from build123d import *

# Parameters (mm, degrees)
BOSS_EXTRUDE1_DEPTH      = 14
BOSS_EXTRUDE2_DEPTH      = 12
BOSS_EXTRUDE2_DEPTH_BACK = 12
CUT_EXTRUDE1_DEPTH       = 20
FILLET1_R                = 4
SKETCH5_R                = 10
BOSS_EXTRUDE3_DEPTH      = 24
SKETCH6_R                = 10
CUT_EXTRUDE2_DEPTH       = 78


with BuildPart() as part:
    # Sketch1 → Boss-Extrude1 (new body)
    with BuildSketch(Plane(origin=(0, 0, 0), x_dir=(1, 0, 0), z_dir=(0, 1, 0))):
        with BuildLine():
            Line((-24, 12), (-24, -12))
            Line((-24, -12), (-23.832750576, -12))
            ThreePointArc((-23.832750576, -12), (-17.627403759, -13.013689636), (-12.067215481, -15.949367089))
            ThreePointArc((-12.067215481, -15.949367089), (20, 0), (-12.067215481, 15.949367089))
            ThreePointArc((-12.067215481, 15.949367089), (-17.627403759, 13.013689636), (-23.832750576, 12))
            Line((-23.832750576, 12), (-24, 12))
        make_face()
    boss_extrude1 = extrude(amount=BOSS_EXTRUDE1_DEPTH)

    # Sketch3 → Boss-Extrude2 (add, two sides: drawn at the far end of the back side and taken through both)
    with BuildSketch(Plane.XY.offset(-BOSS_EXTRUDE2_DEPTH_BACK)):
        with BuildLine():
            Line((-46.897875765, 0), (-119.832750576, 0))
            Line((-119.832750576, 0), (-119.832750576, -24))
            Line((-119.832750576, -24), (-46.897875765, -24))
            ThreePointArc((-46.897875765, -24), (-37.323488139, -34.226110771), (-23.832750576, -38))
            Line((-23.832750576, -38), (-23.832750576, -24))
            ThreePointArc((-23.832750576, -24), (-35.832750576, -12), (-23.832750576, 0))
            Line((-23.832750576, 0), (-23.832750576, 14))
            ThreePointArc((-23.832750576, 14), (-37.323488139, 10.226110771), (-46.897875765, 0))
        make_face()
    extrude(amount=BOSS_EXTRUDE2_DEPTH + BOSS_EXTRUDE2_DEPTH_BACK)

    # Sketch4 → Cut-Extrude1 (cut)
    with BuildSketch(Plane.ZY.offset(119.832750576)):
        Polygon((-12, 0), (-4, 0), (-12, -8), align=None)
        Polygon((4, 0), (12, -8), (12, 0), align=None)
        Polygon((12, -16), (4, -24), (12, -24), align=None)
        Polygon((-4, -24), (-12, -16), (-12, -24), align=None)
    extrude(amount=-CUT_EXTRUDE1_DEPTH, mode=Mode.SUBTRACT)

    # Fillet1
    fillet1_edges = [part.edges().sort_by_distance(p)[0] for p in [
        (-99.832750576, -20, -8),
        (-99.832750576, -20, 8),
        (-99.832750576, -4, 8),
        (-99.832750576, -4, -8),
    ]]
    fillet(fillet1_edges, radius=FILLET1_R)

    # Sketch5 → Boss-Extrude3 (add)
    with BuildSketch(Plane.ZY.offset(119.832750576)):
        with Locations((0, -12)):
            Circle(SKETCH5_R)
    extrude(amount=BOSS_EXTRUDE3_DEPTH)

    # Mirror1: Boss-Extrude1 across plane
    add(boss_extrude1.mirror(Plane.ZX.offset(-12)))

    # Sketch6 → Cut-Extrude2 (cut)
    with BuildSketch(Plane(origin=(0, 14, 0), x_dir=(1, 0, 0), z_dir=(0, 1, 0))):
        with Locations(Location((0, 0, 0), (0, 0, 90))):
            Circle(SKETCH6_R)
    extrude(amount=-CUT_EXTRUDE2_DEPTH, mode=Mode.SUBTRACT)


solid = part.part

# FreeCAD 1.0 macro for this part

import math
import FreeCAD as App
import Part
import Sketcher
Q = App.Units.Quantity


def edges_at(feature, points):
    """Names of the edges that pass closest to the given points."""
    edges = feature.Shape.Edges
    near = lambda p: min(range(len(edges)), key=lambda i: edges[i].distToShape(Part.Vertex(*p))[0])
    return sorted({f"Edge{near(p) + 1}" for p in points})


def add_polygon(sketch, points):
    """Adds a closed chain of lines whose ends are joined by coincident constraints."""
    first, n = sketch.GeometryCount, len(points)
    for a, b in zip(points, points[1:] + points[:1]):
        sketch.addGeometry(Part.LineSegment(App.Vector(*a, 0), App.Vector(*b, 0)), False)
    for i in range(n):
        sketch.addConstraint(Sketcher.Constraint("Coincident", first + i, 2, first + (i + 1) % n, 1))

doc = App.newDocument("Part")
body = doc.addObject("PartDesign::Body", "Body")

sketch1 = body.newObject("Sketcher::SketchObject", "Sketch")
sketch1.AttachmentSupport = (doc.getObject("XZ_Plane"), [""])
sketch1.MapMode = "FlatFace"
sketch1.addGeometry([
    Part.LineSegment(App.Vector(-24, -12, 0), App.Vector(-24, 12, 0)),
    Part.LineSegment(App.Vector(-24, 12, 0), App.Vector(-23.83, 12, 0)),
    Part.ArcOfCircle(Part.Circle(App.Vector(-23.83, 31.5, 0), App.Vector(0, 0, 1), 19.5), math.radians(-90), math.radians(-53)),
    Part.ArcOfCircle(Part.Circle(App.Vector(0, 0, 0), App.Vector(0, 0, 1), 20), math.radians(-127), math.radians(127)),
    Part.ArcOfCircle(Part.Circle(App.Vector(-23.83, -31.5, 0), App.Vector(0, 0, 1), 19.5), math.radians(53), math.radians(90)),
    Part.LineSegment(App.Vector(-23.83, -12, 0), App.Vector(-24, -12, 0)),
], False)
sketch1.addConstraint([
    Sketcher.Constraint("Coincident", 0, 2, 1, 1),
    Sketcher.Constraint("Tangent", 1, 2, 2, 1),
    Sketcher.Constraint("Tangent", 2, 2, 3, 2),
    Sketcher.Constraint("Tangent", 3, 1, 4, 1),
    Sketcher.Constraint("Tangent", 4, 2, 5, 1),
    Sketcher.Constraint("Coincident", 5, 2, 0, 1),
    Sketcher.Constraint("Vertical", 0),
    Sketcher.Constraint("Horizontal", 1),
    Sketcher.Constraint("Horizontal", 5),
    Sketcher.Constraint("Coincident", 3, 3, -1, 1),
    Sketcher.Constraint("Equal", 2, 4),
    Sketcher.Constraint("Vertical", 2, 3, 4, 3),
    Sketcher.Constraint("Radius", 3, Q("20 mm")),
    Sketcher.Constraint("Radius", 2, Q("19.5 mm")),
    Sketcher.Constraint("DistanceY", 0, 1, 0, 2, Q("24 mm")),
    Sketcher.Constraint("DistanceX", 0, 2, -1, 1, Q("24 mm")),
])
pad1 = body.newObject("PartDesign::Pad", "Pad")
pad1.Profile = sketch1
pad1.Length = 14
pad1.Reversed = True

sketch2 = body.newObject("Sketcher::SketchObject", "Sketch001")
sketch2.AttachmentSupport = (doc.getObject("XY_Plane"), [""])
sketch2.MapMode = "FlatFace"
sketch2.addGeometry([
    Part.LineSegment(App.Vector(-47, 0, 0), App.Vector(-120, 0, 0)),
    Part.LineSegment(App.Vector(-120, 0, 0), App.Vector(-120, -24, 0)),
    Part.LineSegment(App.Vector(-120, -24, 0), App.Vector(-47, -24, 0)),
    Part.ArcOfCircle(Part.Circle(App.Vector(-24, -12, 0), App.Vector(0, 0, 1), 26), math.radians(-153), math.radians(-90)),
    Part.LineSegment(App.Vector(-24, -38, 0), App.Vector(-24, -24, 0)),
    Part.ArcOfCircle(Part.Circle(App.Vector(-24, -12, 0), App.Vector(0, 0, 1), 12), math.radians(90), math.radians(270)),
    Part.LineSegment(App.Vector(-24, 0, 0), App.Vector(-24, 14, 0)),
    Part.ArcOfCircle(Part.Circle(App.Vector(-24, -12, 0), App.Vector(0, 0, 1), 26), math.radians(90), math.radians(153)),
], False)
sketch2.addConstraint([
    Sketcher.Constraint("Coincident", 0, 2, 1, 1),
    Sketcher.Constraint("Coincident", 1, 2, 2, 1),
    Sketcher.Constraint("Coincident", 2, 2, 3, 1),
    Sketcher.Constraint("Coincident", 3, 2, 4, 1),
    Sketcher.Constraint("Coincident", 4, 2, 5, 2),
    Sketcher.Constraint("Coincident", 5, 1, 6, 1),
    Sketcher.Constraint("Coincident", 6, 2, 7, 1),
    Sketcher.Constraint("Coincident", 7, 2, 0, 1),
    Sketcher.Constraint("Horizontal", 0),
    Sketcher.Constraint("Vertical", 1),
    Sketcher.Constraint("Horizontal", 2),
    Sketcher.Constraint("Vertical", 4),
    Sketcher.Constraint("Vertical", 6),
    Sketcher.Constraint("Coincident", 5, 3, 3, 3),
    Sketcher.Constraint("Coincident", 7, 3, 3, 3),
    Sketcher.Constraint("Equal", 3, 7),
    Sketcher.Constraint("PointOnObject", 0, 2, -1),
    Sketcher.Constraint("PointOnObject", 5, 1, -1),
    Sketcher.Constraint("Horizontal", 2, 2, 4, 2),
    Sketcher.Constraint("Vertical", 7, 3, 3, 2),
    Sketcher.Constraint("Vertical", 4, 2, 5, 1),
    Sketcher.Constraint("Radius", 3, Q("26 mm")),
    Sketcher.Constraint("Radius", 5, Q("12 mm")),
    Sketcher.Constraint("DistanceX", 0, 2, 7, 3, Q("96 mm")),
    Sketcher.Constraint("DistanceX", 3, 3, -1, 1, Q("23.832751 mm")),
])
pad2 = body.newObject("PartDesign::Pad", "Pad001")
pad2.Profile = sketch2
pad2.Type = "TwoLengths"
pad2.Length = 12
pad2.Length2 = 12

sketch3 = body.newObject("Sketcher::SketchObject", "Sketch002")
sketch3.AttachmentSupport = (doc.getObject("YZ_Plane"), [""])
sketch3.MapMode = "FlatFace"
sketch3.AttachmentOffset = App.Placement(App.Vector(0, 0, -119.832751), App.Rotation())
add_polygon(sketch3, [(0, -4), (0, -12), (-8, -12)])
add_polygon(sketch3, [(0, 4), (-8, 12), (0, 12)])
add_polygon(sketch3, [(-16, 12), (-24, 4), (-24, 12)])
add_polygon(sketch3, [(-24, -4), (-16, -12), (-24, -12)])
sketch3.addConstraint([
    Sketcher.Constraint("Vertical", 0),
    Sketcher.Constraint("Horizontal", 1),
    Sketcher.Constraint("Horizontal", 4),
    Sketcher.Constraint("Vertical", 5),
    Sketcher.Constraint("Vertical", 7),
    Sketcher.Constraint("Horizontal", 8),
    Sketcher.Constraint("Horizontal", 10),
    Sketcher.Constraint("Vertical", 11),
    Sketcher.Constraint("Symmetric", 0, 2, 4, 2, -1, 1),
    Sketcher.Constraint("Symmetric", 2, 2, 5, 2, -1),
    Sketcher.Constraint("Symmetric", 8, 2, 9, 2, -1),
    Sketcher.Constraint("Symmetric", 6, 2, 11, 2, -1),
    Sketcher.Constraint("Perpendicular", 2, 3),
    Sketcher.Constraint("Perpendicular", 3, 6),
    Sketcher.Constraint("Perpendicular", 6, 9),
    Sketcher.Constraint("Horizontal", 5, 2, 6, 2),
    Sketcher.Constraint("Horizontal", 4, 2, 7, 2),
    Sketcher.Constraint("DistanceX", 1, 2, 1, 1, Q("8 mm")),
    Sketcher.Constraint("DistanceY", 0, 2, -1, 1, Q("12 mm")),
    Sketcher.Constraint("DistanceX", 6, 2, -1, 1, Q("24 mm")),
])
pocket1 = body.newObject("PartDesign::Pocket", "Pocket")
pocket1.Profile = sketch3
pocket1.Length = 20
pocket1.Reversed = True
doc.recompute()

fillet = body.newObject("PartDesign::Fillet", "Fillet")
fillet.Base = (pocket1, edges_at(pocket1, [
    (-99.833, -20, -8),
    (-99.833, -20, 8),
    (-99.833, -4, 8),
    (-99.833, -4, -8),
]))
fillet.Radius = 4

sketch4 = body.newObject("Sketcher::SketchObject", "Sketch003")
sketch4.AttachmentSupport = (doc.getObject("YZ_Plane"), [""])
sketch4.MapMode = "FlatFace"
sketch4.AttachmentOffset = App.Placement(App.Vector(0, 0, -119.832751), App.Rotation())
sketch4.addGeometry(Part.Circle(App.Vector(-12, 0, 0), App.Vector(0, 0, 1), 10), False)
sketch4.addConstraint([
    Sketcher.Constraint("PointOnObject", 0, 3, -1),
    Sketcher.Constraint("Diameter", 0, Q("20 mm")),
    Sketcher.Constraint("DistanceX", 0, 3, -1, 1, Q("12 mm")),
])
pad3 = body.newObject("PartDesign::Pad", "Pad002")
pad3.Profile = sketch4
pad3.Length = 24
pad3.Reversed = True
doc.recompute()

datumplane = body.newObject("PartDesign::Plane", "DatumPlane")
datumplane.AttachmentSupport = (doc.getObject("XZ_Plane"), [""])
datumplane.MapMode = "FlatFace"
datumplane.AttachmentOffset = App.Placement(App.Vector(0, 0, 12), App.Rotation())
mirrored = body.newObject("PartDesign::Mirrored", "Mirrored")
mirrored.Originals = [pad1]
mirrored.MirrorPlane = (datumplane, [""])
body.Tip = mirrored

sketch5 = body.newObject("Sketcher::SketchObject", "Sketch004")
sketch5.AttachmentSupport = (doc.getObject("XZ_Plane"), [""])
sketch5.MapMode = "FlatFace"
sketch5.AttachmentOffset = App.Placement(App.Vector(0, 0, -14), App.Rotation())
sketch5.addGeometry(Part.Circle(App.Vector(0, 0, 0), App.Vector(0, 0, 1), 10), False)
sketch5.addConstraint([
    Sketcher.Constraint("Coincident", 0, 3, -1, 1),
    Sketcher.Constraint("Diameter", 0, Q("20 mm")),
])
pocket2 = body.newObject("PartDesign::Pocket", "Pocket001")
pocket2.Profile = sketch5
pocket2.Length = 78
pocket2.Reversed = True

doc.recompute()
